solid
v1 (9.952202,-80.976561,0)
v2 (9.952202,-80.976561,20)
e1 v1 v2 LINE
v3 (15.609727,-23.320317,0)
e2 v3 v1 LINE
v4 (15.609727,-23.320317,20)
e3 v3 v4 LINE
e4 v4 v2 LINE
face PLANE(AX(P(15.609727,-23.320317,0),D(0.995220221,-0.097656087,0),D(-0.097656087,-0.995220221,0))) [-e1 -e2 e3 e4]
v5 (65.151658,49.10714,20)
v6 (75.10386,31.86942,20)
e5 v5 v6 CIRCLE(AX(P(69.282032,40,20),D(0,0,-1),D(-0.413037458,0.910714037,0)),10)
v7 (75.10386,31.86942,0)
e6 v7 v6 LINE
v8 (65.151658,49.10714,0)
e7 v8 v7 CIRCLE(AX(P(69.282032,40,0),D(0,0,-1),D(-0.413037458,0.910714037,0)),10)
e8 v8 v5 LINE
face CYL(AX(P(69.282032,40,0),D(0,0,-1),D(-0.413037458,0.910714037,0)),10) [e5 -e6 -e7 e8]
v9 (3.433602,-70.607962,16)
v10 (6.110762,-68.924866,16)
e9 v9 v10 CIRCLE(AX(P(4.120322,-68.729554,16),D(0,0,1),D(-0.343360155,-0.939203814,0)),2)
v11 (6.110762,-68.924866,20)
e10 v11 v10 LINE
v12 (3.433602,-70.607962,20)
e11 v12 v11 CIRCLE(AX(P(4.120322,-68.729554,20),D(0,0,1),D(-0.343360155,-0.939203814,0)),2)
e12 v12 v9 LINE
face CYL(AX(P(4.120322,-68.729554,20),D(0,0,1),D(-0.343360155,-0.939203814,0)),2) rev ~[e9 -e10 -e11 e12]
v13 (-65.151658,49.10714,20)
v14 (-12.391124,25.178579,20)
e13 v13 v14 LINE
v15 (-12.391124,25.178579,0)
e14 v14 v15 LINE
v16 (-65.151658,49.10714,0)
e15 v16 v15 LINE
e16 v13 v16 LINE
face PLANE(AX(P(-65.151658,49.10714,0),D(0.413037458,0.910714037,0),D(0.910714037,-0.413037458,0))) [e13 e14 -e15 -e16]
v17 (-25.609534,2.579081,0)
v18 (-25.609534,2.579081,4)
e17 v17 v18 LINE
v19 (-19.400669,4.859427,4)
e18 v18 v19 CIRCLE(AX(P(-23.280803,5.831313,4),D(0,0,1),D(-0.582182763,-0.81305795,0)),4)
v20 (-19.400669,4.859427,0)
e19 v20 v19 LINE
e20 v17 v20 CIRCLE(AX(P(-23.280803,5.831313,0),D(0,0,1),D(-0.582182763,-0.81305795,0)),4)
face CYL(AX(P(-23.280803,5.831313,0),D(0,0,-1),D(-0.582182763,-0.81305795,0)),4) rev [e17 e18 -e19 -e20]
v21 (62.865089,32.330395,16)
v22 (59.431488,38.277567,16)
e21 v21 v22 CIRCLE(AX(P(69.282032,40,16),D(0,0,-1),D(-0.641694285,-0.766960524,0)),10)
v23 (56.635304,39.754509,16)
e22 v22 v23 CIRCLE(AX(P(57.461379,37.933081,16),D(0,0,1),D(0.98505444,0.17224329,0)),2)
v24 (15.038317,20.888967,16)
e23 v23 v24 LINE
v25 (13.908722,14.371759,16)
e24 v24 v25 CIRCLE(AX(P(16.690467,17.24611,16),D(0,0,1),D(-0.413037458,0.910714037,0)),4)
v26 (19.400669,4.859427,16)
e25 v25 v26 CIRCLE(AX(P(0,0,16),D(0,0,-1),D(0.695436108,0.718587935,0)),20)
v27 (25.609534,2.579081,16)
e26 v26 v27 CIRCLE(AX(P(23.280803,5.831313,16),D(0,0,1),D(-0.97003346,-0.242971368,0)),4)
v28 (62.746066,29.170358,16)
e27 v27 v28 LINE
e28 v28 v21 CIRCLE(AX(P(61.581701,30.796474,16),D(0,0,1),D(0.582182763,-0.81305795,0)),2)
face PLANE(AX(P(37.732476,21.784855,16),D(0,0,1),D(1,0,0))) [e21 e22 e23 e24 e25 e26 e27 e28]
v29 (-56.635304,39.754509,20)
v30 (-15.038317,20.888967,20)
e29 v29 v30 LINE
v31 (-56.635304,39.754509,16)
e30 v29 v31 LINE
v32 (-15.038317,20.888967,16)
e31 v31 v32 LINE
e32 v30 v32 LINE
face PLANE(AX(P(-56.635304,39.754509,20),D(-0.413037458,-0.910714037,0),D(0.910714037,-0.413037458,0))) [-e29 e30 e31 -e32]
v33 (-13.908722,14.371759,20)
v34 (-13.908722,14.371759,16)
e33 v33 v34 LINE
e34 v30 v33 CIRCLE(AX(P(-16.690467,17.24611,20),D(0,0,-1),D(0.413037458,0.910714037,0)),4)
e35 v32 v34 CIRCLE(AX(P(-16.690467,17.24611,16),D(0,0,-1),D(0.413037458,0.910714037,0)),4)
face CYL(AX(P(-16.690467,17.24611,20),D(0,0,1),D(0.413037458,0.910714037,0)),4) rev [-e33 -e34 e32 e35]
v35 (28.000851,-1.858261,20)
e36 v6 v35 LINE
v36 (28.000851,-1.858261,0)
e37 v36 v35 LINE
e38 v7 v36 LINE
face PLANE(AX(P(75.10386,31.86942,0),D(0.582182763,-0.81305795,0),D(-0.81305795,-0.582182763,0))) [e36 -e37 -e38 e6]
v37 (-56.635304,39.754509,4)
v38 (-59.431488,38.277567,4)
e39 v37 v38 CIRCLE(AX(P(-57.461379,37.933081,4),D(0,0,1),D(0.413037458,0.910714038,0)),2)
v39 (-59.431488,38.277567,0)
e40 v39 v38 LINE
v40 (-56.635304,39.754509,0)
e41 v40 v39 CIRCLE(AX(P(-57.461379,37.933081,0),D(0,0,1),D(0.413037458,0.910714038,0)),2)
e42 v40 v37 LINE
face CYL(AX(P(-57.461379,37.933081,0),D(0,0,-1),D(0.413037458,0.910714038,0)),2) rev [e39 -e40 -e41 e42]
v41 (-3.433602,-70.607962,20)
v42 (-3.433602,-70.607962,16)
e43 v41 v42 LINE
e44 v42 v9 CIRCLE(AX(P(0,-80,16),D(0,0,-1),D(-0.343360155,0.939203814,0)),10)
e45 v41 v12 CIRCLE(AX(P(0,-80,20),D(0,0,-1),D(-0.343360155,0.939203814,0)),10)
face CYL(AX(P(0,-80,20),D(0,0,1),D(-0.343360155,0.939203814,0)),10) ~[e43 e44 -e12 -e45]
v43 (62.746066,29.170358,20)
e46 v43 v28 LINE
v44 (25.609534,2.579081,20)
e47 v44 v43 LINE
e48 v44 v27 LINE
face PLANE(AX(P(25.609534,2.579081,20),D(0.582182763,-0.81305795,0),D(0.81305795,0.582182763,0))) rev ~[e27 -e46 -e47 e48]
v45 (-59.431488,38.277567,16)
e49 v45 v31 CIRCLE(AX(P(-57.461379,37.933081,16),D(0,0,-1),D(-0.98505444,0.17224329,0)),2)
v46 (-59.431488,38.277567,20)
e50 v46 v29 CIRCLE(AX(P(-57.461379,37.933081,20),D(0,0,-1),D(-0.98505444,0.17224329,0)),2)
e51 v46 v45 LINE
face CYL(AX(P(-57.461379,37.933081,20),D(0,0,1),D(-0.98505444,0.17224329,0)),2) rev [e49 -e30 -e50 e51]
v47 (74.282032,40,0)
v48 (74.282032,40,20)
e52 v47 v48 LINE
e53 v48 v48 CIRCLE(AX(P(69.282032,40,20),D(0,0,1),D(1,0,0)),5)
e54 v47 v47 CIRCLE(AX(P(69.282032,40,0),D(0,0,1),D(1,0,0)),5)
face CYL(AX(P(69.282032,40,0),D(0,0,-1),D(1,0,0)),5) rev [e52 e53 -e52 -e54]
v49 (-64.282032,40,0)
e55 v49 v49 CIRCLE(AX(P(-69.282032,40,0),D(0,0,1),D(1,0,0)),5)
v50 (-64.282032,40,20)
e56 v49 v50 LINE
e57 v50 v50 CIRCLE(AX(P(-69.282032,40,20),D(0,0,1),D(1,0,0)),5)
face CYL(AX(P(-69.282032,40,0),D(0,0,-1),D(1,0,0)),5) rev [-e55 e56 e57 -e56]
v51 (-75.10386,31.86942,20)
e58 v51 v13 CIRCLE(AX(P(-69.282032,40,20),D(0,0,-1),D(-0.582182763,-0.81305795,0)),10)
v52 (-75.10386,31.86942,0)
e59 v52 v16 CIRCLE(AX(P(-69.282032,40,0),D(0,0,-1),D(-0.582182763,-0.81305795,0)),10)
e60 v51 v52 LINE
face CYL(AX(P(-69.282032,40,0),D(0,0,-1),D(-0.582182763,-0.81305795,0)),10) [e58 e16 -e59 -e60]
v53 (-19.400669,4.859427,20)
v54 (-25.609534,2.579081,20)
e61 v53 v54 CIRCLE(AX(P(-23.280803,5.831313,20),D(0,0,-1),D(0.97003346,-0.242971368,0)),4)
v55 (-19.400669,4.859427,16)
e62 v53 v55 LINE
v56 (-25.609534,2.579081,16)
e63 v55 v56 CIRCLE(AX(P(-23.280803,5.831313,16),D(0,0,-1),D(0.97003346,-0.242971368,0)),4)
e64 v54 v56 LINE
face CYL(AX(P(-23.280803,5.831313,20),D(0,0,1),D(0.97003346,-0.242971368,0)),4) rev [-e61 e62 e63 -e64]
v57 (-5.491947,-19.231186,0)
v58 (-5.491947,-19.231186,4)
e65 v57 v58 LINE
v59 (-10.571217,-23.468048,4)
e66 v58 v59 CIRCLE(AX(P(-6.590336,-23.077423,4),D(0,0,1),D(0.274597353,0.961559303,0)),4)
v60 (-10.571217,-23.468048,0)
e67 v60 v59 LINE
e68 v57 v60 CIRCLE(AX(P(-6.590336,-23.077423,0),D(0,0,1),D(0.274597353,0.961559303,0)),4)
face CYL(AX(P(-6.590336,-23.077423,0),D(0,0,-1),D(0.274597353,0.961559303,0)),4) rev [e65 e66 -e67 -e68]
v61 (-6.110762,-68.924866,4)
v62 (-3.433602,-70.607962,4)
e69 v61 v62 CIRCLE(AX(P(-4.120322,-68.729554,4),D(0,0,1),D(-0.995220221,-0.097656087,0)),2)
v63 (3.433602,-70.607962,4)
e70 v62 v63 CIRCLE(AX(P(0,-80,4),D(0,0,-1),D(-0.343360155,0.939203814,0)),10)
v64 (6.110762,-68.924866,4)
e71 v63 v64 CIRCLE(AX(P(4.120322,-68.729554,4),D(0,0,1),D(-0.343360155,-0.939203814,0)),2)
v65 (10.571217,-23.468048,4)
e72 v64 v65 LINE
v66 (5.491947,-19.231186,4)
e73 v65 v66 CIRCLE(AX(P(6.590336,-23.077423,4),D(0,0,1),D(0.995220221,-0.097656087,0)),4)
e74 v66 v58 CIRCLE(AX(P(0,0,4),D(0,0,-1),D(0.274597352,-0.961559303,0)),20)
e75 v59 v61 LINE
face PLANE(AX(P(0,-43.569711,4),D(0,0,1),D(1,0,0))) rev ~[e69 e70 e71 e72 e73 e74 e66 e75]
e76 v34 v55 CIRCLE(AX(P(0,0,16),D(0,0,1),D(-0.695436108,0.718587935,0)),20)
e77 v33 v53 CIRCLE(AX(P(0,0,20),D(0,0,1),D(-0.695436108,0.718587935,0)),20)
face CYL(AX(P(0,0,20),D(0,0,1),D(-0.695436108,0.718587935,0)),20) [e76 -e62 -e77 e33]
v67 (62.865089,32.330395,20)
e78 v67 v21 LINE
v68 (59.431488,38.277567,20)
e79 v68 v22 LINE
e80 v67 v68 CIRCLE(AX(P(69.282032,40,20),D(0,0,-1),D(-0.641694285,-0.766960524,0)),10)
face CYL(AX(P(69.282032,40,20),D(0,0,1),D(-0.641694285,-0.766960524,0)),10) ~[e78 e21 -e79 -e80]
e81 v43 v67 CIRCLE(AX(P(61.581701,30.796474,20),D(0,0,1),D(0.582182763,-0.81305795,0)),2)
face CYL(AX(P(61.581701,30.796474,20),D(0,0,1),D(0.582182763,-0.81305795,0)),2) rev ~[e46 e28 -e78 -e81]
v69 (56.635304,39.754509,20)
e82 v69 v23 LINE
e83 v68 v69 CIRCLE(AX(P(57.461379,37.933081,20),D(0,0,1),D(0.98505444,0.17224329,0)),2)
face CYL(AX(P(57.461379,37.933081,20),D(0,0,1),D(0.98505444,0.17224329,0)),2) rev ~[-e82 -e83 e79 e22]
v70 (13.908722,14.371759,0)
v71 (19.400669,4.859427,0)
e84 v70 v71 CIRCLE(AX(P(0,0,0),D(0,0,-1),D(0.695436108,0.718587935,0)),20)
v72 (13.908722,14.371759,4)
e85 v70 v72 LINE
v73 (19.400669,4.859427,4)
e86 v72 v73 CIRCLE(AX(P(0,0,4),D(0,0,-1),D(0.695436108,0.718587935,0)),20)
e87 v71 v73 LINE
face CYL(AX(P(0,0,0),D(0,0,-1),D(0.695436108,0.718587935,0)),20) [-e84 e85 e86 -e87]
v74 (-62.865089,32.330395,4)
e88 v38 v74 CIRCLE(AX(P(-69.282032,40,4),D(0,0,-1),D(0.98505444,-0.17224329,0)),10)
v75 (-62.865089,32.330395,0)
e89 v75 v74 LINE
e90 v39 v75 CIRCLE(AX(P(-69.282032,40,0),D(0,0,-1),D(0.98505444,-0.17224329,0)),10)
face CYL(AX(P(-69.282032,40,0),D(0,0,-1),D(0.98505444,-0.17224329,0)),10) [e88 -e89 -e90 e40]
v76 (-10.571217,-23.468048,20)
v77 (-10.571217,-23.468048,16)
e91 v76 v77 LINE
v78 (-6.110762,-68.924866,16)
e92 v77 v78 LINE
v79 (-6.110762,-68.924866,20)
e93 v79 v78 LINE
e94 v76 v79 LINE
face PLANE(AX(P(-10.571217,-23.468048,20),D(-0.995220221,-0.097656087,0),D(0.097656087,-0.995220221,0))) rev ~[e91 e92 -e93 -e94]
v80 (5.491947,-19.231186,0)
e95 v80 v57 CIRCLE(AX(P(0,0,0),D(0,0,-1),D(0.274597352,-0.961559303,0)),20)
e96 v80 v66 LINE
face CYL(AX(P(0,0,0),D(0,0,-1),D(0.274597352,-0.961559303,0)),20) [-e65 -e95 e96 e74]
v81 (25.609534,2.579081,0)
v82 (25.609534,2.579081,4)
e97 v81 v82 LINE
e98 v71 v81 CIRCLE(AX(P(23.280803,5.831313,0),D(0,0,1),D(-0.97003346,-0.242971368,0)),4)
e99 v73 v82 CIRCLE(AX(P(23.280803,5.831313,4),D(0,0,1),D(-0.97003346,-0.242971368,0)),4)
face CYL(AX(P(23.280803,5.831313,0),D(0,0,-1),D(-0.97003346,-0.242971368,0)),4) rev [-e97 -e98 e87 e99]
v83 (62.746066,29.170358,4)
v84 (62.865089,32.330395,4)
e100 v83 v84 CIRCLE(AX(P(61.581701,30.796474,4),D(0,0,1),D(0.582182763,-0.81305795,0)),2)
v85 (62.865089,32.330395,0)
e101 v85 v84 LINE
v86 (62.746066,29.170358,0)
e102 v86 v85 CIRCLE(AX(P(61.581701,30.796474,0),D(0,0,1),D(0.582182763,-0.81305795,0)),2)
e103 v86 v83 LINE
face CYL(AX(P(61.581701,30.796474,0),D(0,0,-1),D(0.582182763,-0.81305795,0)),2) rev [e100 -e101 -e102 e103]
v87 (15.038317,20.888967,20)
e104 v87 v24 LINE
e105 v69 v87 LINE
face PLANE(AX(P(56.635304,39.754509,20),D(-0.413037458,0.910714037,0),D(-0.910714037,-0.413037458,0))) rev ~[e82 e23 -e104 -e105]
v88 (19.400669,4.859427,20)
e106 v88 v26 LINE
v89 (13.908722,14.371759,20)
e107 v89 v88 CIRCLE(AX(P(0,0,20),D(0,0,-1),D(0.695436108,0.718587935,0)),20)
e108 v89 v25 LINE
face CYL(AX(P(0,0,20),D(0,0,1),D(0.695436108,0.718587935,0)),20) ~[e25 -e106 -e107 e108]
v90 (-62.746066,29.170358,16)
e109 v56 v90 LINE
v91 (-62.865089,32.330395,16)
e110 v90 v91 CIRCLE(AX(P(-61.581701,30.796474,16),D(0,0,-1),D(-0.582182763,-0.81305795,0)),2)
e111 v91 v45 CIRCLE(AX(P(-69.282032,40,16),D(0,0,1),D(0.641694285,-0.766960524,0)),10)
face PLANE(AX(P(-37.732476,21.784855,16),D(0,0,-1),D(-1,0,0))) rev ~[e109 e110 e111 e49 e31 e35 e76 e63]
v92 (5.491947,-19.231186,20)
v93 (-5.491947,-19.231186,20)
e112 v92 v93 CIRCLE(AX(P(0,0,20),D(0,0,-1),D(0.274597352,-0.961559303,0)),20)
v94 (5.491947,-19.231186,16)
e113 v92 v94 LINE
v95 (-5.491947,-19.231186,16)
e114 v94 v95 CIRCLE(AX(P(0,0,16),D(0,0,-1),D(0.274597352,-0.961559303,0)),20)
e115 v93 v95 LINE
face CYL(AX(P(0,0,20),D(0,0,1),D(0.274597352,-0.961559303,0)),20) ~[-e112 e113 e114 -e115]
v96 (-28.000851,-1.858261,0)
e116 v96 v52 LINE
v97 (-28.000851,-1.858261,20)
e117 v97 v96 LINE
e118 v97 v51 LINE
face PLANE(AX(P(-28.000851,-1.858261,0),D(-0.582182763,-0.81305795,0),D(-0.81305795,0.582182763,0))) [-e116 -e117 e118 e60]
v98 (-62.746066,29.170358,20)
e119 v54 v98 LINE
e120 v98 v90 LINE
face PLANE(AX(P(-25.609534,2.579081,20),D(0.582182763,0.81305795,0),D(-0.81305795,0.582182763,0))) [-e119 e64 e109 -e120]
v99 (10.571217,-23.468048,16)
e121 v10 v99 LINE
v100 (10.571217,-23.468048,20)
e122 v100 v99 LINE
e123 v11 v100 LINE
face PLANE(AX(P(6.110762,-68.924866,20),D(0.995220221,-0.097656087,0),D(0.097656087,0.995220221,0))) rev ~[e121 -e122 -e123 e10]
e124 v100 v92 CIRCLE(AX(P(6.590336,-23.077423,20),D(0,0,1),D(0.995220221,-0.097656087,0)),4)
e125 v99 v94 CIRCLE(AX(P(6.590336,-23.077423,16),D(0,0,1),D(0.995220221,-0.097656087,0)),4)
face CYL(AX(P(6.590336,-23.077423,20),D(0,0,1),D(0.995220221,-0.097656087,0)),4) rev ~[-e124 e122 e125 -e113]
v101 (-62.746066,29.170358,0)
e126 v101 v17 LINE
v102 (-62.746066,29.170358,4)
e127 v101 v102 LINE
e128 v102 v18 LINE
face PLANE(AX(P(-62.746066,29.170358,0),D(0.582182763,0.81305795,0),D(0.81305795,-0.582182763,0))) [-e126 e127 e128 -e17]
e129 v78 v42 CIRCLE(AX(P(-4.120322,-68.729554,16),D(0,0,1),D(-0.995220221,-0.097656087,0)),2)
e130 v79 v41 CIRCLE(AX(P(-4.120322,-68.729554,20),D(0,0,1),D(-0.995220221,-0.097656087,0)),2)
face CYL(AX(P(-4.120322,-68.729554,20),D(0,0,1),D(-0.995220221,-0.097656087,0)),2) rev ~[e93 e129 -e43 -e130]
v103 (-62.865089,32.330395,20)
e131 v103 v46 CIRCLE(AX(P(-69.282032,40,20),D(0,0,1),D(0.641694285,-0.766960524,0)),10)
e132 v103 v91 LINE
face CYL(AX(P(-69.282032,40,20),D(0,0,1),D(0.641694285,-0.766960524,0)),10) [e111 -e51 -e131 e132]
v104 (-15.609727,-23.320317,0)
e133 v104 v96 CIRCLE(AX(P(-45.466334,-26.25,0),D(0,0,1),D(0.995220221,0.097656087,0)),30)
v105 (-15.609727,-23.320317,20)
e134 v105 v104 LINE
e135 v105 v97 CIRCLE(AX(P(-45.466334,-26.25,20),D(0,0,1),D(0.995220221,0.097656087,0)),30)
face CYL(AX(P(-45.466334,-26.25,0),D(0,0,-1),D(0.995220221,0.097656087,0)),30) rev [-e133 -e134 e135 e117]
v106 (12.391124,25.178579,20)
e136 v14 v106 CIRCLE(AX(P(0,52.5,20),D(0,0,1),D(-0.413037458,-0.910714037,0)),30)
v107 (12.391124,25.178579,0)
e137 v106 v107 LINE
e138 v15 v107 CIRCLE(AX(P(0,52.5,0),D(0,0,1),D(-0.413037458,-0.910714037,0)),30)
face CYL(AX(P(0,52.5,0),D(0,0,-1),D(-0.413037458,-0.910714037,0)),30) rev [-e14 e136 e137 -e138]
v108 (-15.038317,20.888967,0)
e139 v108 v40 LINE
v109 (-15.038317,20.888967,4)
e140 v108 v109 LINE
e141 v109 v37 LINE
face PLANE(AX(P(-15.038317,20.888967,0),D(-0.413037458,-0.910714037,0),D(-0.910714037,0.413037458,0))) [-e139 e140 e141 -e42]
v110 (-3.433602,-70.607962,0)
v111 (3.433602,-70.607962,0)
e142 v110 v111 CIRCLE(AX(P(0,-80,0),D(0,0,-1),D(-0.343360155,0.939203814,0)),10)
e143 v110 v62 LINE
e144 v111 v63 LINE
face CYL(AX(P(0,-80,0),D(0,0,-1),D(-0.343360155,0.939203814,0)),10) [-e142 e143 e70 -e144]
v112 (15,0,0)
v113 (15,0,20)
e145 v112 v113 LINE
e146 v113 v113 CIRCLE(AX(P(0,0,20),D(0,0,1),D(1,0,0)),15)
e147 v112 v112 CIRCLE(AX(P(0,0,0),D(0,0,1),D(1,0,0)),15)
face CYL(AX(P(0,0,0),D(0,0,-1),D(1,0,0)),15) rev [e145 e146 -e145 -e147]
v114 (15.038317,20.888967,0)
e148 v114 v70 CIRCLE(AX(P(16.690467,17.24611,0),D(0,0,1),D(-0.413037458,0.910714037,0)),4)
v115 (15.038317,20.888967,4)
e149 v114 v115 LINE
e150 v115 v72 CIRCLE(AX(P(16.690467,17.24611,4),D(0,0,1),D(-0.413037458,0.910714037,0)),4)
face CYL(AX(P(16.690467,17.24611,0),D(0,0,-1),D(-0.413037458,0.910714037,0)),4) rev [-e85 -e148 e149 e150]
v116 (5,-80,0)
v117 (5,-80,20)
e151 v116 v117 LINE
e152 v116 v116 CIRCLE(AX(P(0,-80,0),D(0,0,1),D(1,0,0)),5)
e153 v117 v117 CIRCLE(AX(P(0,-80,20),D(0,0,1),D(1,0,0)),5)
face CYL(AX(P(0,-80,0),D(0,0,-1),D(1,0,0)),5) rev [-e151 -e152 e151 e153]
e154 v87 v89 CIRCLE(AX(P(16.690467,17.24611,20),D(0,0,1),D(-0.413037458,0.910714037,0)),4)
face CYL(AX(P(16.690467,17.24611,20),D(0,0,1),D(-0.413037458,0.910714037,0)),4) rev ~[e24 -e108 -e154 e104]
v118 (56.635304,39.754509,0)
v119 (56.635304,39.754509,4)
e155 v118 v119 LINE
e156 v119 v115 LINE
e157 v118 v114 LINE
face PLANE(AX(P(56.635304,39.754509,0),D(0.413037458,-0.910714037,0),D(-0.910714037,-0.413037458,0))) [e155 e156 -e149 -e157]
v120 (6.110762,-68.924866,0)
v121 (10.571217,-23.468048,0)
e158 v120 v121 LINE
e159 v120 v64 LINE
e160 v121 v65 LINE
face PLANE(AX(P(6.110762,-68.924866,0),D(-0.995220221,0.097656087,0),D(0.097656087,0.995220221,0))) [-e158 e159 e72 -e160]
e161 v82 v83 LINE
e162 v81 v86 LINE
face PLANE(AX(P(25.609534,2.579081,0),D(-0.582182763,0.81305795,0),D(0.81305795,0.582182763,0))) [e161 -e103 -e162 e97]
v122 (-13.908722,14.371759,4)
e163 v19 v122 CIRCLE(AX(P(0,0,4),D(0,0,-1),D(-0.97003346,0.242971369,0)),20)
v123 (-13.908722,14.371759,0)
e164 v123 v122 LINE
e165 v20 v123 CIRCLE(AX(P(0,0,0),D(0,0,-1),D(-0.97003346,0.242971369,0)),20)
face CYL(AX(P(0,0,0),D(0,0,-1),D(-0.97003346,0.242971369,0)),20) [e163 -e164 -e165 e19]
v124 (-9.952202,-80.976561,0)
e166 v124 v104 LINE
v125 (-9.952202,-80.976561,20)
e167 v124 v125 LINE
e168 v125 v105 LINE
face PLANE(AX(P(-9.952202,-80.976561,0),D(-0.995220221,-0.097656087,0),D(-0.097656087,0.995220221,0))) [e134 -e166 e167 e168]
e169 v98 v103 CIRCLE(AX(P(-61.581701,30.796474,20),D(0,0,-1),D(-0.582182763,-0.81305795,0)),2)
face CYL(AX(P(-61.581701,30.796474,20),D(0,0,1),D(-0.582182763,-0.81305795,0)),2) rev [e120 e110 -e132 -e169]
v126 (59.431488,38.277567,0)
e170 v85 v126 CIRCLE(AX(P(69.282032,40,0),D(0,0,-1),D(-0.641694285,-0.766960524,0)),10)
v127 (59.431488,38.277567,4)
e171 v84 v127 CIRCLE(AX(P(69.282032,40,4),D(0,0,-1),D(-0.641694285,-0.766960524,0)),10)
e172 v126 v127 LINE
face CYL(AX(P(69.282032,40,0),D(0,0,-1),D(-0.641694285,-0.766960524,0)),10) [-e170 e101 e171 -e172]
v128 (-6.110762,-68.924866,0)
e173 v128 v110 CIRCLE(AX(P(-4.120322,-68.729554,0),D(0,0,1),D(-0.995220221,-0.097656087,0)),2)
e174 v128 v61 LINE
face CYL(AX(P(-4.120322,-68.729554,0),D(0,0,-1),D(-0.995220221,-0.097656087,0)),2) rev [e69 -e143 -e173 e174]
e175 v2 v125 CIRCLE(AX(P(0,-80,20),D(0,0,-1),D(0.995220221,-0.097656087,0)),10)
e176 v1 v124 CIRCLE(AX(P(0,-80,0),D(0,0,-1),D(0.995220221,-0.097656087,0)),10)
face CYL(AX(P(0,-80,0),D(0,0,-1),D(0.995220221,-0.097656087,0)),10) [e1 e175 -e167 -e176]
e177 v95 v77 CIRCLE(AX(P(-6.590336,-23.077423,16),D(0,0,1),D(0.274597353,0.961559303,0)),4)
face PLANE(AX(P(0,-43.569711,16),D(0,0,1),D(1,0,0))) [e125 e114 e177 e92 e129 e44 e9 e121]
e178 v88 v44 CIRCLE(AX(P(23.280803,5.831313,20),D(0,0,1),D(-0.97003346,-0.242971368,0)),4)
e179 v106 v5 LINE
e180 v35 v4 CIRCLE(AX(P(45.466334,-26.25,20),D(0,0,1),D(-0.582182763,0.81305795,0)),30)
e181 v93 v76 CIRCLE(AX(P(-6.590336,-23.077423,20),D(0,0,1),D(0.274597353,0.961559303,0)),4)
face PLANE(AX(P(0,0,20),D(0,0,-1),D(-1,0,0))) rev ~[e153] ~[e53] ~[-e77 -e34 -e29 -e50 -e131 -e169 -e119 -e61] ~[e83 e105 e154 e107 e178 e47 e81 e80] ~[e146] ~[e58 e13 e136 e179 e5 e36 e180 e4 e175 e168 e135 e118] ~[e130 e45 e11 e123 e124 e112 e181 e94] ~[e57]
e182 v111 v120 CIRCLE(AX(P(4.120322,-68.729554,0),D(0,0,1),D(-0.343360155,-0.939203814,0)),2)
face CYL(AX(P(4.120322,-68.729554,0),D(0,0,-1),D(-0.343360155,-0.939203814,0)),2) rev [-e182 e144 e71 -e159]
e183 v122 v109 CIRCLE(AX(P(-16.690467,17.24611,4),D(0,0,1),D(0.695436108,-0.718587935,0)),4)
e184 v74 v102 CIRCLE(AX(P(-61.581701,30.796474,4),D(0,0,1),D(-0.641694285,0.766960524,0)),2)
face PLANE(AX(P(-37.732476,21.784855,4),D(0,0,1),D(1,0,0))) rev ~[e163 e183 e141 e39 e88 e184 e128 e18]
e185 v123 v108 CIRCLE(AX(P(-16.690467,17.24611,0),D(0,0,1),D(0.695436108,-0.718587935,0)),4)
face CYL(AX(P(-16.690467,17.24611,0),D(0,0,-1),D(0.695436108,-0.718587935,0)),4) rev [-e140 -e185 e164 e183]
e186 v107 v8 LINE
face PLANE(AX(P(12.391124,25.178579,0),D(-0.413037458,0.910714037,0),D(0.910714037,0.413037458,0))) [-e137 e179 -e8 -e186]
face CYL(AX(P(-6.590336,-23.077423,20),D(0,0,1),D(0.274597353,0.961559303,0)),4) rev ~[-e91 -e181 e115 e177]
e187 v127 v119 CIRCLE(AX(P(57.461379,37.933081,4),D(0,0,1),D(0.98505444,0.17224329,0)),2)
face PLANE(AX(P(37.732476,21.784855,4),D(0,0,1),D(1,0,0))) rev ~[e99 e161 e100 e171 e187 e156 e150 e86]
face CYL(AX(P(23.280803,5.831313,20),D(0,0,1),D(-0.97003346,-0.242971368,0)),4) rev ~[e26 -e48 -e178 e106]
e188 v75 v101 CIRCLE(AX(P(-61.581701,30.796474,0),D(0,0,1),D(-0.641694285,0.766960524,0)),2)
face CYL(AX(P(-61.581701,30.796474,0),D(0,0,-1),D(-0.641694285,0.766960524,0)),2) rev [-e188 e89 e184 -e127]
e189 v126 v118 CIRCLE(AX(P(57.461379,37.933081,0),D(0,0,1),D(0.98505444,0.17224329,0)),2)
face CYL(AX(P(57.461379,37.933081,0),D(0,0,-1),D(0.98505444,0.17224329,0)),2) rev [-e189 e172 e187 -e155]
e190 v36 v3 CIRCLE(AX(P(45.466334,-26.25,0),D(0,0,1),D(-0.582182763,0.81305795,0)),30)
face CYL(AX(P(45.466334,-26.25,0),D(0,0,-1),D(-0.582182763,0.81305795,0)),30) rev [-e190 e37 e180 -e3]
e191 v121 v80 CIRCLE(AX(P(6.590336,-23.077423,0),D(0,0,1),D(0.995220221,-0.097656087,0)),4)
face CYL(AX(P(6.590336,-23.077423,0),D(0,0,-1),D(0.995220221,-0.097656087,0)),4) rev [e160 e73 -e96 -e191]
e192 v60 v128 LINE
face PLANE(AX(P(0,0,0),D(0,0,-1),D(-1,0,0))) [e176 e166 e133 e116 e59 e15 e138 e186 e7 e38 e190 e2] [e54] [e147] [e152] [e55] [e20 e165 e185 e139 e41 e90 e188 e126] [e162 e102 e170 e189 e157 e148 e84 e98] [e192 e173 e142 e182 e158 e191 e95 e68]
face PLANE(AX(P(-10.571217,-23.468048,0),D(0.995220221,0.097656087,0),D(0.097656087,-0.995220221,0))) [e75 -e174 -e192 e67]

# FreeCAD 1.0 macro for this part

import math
import FreeCAD as App
import Part
import Sketcher
Q = App.Units.Quantity

doc = App.newDocument("Part")
params = doc.addObject("Spreadsheet::Sheet", "Params")
for row, (alias, value) in enumerate([
    ("sketch1_diameter", "10 mm"),
    ("sketch1_diameter2", "30 mm"),
    ("sketch1_radius", "10 mm"),
    ("sketch1_radius2", "30 mm"),
    ("pad1_length", "20 mm"),
    ("sketch2_radius", "30 mm"),
    ("sketch2_radius2", "10 mm"),
    ("sketch2_radius3", "4 mm"),
    ("sketch2_radius4", "20 mm"),
    ("sketch2_radius5", "2 mm"),
    ("pocket1_length", "4 mm"),
    ("sketch3_radius", "4 mm"),
    ("sketch3_radius2", "20 mm"),
    ("sketch3_radius3", "2 mm"),
    ("sketch3_radius4", "10 mm"),
    ("pocket2_length", "4 mm"),
], start=1):
    params.set(f"A{row}", alias)
    params.set(f"B{row}", "=" + value)
    params.setAlias(f"B{row}", alias)

body = doc.addObject("PartDesign::Body", "Body")

sketch1 = body.newObject("Sketcher::SketchObject", "Sketch")
sketch1.AttachmentSupport = (doc.getObject("XY_Plane"), [""])
sketch1.MapMode = "FlatFace"
sketch1.addGeometry([
    Part.LineSegment(App.Vector(-16, -23, 0), App.Vector(-10, -81, 0)),
    Part.ArcOfCircle(Part.Circle(App.Vector(0, -80, 0), App.Vector(0, 0, 1), 10), math.radians(-174), math.radians(-6)),
    Part.LineSegment(App.Vector(10, -81, 0), App.Vector(16, -23, 0)),
    Part.ArcOfCircle(Part.Circle(App.Vector(45, -26, 0), App.Vector(0, 0, 1), 30), math.radians(126), math.radians(174)),
    Part.LineSegment(App.Vector(28, -2, 0), App.Vector(75, 32, 0)),
    Part.ArcOfCircle(Part.Circle(App.Vector(69, 40, 0), App.Vector(0, 0, 1), 10), math.radians(-54), math.radians(114)),
    Part.LineSegment(App.Vector(65, 49, 0), App.Vector(12, 25, 0)),
    Part.ArcOfCircle(Part.Circle(App.Vector(0, 52, 0), App.Vector(0, 0, 1), 30), math.radians(-114), math.radians(-66)),
    Part.LineSegment(App.Vector(-12, 25, 0), App.Vector(-65, 49, 0)),
    Part.ArcOfCircle(Part.Circle(App.Vector(-69, 40, 0), App.Vector(0, 0, 1), 10), math.radians(66), math.radians(234)),
    Part.LineSegment(App.Vector(-75, 32, 0), App.Vector(-28, -2, 0)),
    Part.ArcOfCircle(Part.Circle(App.Vector(-45, -26, 0), App.Vector(0, 0, 1), 30), math.radians(6), math.radians(54)),
    Part.Circle(App.Vector(0, -80, 0), App.Vector(0, 0, 1), 5),
    Part.Circle(App.Vector(69, 40, 0), App.Vector(0, 0, 1), 5),
    Part.Circle(App.Vector(0, 0, 0), App.Vector(0, 0, 1), 15),
    Part.Circle(App.Vector(-69, 40, 0), App.Vector(0, 0, 1), 5),
], False)
sketch1.addConstraint([
    Sketcher.Constraint("Tangent", 0, 2, 1, 1),
    Sketcher.Constraint("Tangent", 1, 2, 2, 1),
    Sketcher.Constraint("Tangent", 2, 2, 3, 2),
    Sketcher.Constraint("Tangent", 3, 1, 4, 1),
    Sketcher.Constraint("Tangent", 4, 2, 5, 1),
    Sketcher.Constraint("Tangent", 5, 2, 6, 1),
    Sketcher.Constraint("Tangent", 6, 2, 7, 2),
    Sketcher.Constraint("Tangent", 7, 1, 8, 1),
    Sketcher.Constraint("Tangent", 8, 2, 9, 1),
    Sketcher.Constraint("Tangent", 9, 2, 10, 1),
    Sketcher.Constraint("Tangent", 10, 2, 11, 2),
    Sketcher.Constraint("Tangent", 11, 1, 0, 1),
    Sketcher.Constraint("Coincident", 14, 3, -1, 1),
    Sketcher.Constraint("Coincident", 12, 3, 1, 3),
    Sketcher.Constraint("Coincident", 13, 3, 5, 3),
    Sketcher.Constraint("Coincident", 15, 3, 9, 3),
    Sketcher.Constraint("Equal", 1, 5),
    Sketcher.Constraint("Equal", 3, 7),
    Sketcher.Constraint("Equal", 5, 9),
    Sketcher.Constraint("Equal", 7, 11),
    Sketcher.Constraint("Equal", 12, 13),
    Sketcher.Constraint("Equal", 13, 15),
    Sketcher.Constraint("Symmetric", 5, 3, 9, 3, -2),
    Sketcher.Constraint("Symmetric", 3, 3, 11, 3, -2),
    Sketcher.Constraint("PointOnObject", 1, 3, -2),
    Sketcher.Constraint("PointOnObject", 7, 3, -2),
    Sketcher.Constraint("Equal", 2, 4),
    Sketcher.Constraint("Equal", 4, 6),
    Sketcher.Constraint("Diameter", 12, Q("10 mm")),
    Sketcher.Constraint("Diameter", 14, Q("30 mm")),
    Sketcher.Constraint("Radius", 1, Q("10 mm")),
    Sketcher.Constraint("Radius", 3, Q("30 mm")),
    Sketcher.Constraint("DistanceY", 1, 3, -1, 1, Q("80 mm")),
    Sketcher.Constraint("DistanceY", -1, 1, 5, 3, Q("40 mm")),
    Sketcher.Constraint("DistanceY", -1, 1, 7, 3, Q("52.5 mm")),
    Sketcher.Constraint("DistanceY", 3, 3, -1, 1, Q("26.25 mm")),
])
sketch1.setExpression("Constraints[28]", "Params.sketch1_diameter")
sketch1.setExpression("Constraints[29]", "Params.sketch1_diameter2")
sketch1.setExpression("Constraints[30]", "Params.sketch1_radius")
sketch1.setExpression("Constraints[31]", "Params.sketch1_radius2")
pad1 = body.newObject("PartDesign::Pad", "Pad")
pad1.Profile = sketch1
pad1.setExpression("Length", "Params.pad1_length")

sketch2 = body.newObject("Sketcher::SketchObject", "Sketch001")
sketch2.AttachmentSupport = (doc.getObject("XY_Plane"), [""])
sketch2.MapMode = "FlatFace"
sketch2.AttachmentOffset = App.Placement(App.Vector(0, 0, 20), App.Rotation())
sketch2.addGeometry([
    Part.LineSegment(App.Vector(-101.5, 72.2, 0), App.Vector(-101.5, -112.2, 0)),
    Part.LineSegment(App.Vector(-101.5, -112.2, 0), App.Vector(101.5, -112.2, 0)),
    Part.LineSegment(App.Vector(101.5, -112.2, 0), App.Vector(101.5, 72.2, 0)),
    Part.LineSegment(App.Vector(101.5, 72.2, 0), App.Vector(-101.5, 72.2, 0)),
    Part.LineSegment(App.Vector(-10, -81, 0), App.Vector(-15.6, -23.3, 0)),
    Part.ArcOfCircle(Part.Circle(App.Vector(-45.5, -26.2, 0), App.Vector(0, 0, 1), 30), math.radians(6), math.radians(54)),
    Part.LineSegment(App.Vector(-28, -1.9, 0), App.Vector(-75.1, 31.9, 0)),
    Part.ArcOfCircle(Part.Circle(App.Vector(-69.3, 40, 0), App.Vector(0, 0, 1), 10), math.radians(66), math.radians(234)),
    Part.LineSegment(App.Vector(-65.2, 49.1, 0), App.Vector(-12.4, 25.2, 0)),
    Part.ArcOfCircle(Part.Circle(App.Vector(0, 52.5, 0), App.Vector(0, 0, 1), 30), math.radians(-114), math.radians(-66)),
    Part.LineSegment(App.Vector(12.4, 25.2, 0), App.Vector(65.2, 49.1, 0)),
    Part.ArcOfCircle(Part.Circle(App.Vector(69.3, 40, 0), App.Vector(0, 0, 1), 10), math.radians(-54), math.radians(114)),
    Part.LineSegment(App.Vector(75.1, 31.9, 0), App.Vector(28, -1.9, 0)),
    Part.ArcOfCircle(Part.Circle(App.Vector(45.5, -26.2, 0), App.Vector(0, 0, 1), 30), math.radians(126), math.radians(174)),
    Part.LineSegment(App.Vector(15.6, -23.3, 0), App.Vector(10, -81, 0)),
    Part.ArcOfCircle(Part.Circle(App.Vector(0, -80, 0), App.Vector(0, 0, 1), 10), math.radians(-174), math.radians(-6)),
    Part.LineSegment(App.Vector(-62.7, 29.2, 0), App.Vector(-25.6, 2.6, 0)),
    Part.ArcOfCircle(Part.Circle(App.Vector(-23.3, 5.8, 0), App.Vector(0, 0, 1), 4), math.radians(-126), math.radians(-14)),
    Part.ArcOfCircle(Part.Circle(App.Vector(0, 0, 0), App.Vector(0, 0, 1), 20), math.radians(134), math.radians(166)),
    Part.ArcOfCircle(Part.Circle(App.Vector(-16.7, 17.2, 0), App.Vector(0, 0, 1), 4), math.radians(-46), math.radians(66)),
    Part.LineSegment(App.Vector(-15, 20.9, 0), App.Vector(-56.6, 39.8, 0)),
    Part.ArcOfCircle(Part.Circle(App.Vector(-57.5, 37.9, 0), App.Vector(0, 0, 1), 2), math.radians(66), math.radians(170)),
    Part.ArcOfCircle(Part.Circle(App.Vector(-69.3, 40, 0), App.Vector(0, 0, 1), 10), math.radians(-50), math.radians(-10)),
    Part.ArcOfCircle(Part.Circle(App.Vector(-61.6, 30.8, 0), App.Vector(0, 0, 1), 2), math.radians(130), math.radians(234)),
    Part.LineSegment(App.Vector(25.6, 2.6, 0), App.Vector(62.7, 29.2, 0)),
    Part.ArcOfCircle(Part.Circle(App.Vector(61.6, 30.8, 0), App.Vector(0, 0, 1), 2), math.radians(-54), math.radians(50)),
    Part.ArcOfCircle(Part.Circle(App.Vector(69.3, 40, 0), App.Vector(0, 0, 1), 10), math.radians(-170), math.radians(-130)),
    Part.ArcOfCircle(Part.Circle(App.Vector(57.5, 37.9, 0), App.Vector(0, 0, 1), 2), math.radians(10), math.radians(114)),
    Part.LineSegment(App.Vector(56.6, 39.8, 0), App.Vector(15, 20.9, 0)),
    Part.ArcOfCircle(Part.Circle(App.Vector(16.7, 17.2, 0), App.Vector(0, 0, 1), 4), math.radians(114), math.radians(226)),
    Part.ArcOfCircle(Part.Circle(App.Vector(0, 0, 0), App.Vector(0, 0, 1), 20), math.radians(14), math.radians(46)),
    Part.ArcOfCircle(Part.Circle(App.Vector(23.3, 5.8, 0), App.Vector(0, 0, 1), 4), math.radians(-166), math.radians(-54)),
    Part.LineSegment(App.Vector(-10.6, -23.5, 0), App.Vector(-6.1, -68.9, 0)),
    Part.ArcOfCircle(Part.Circle(App.Vector(-4.1, -68.7, 0), App.Vector(0, 0, 1), 2), math.radians(-174), math.radians(-70)),
    Part.ArcOfCircle(Part.Circle(App.Vector(0, -80, 0), App.Vector(0, 0, 1), 10), math.radians(70), math.radians(110)),
    Part.ArcOfCircle(Part.Circle(App.Vector(4.1, -68.7, 0), App.Vector(0, 0, 1), 2), math.radians(-110), math.radians(-6)),
    Part.LineSegment(App.Vector(6.1, -68.9, 0), App.Vector(10.6, -23.5, 0)),
    Part.ArcOfCircle(Part.Circle(App.Vector(6.6, -23.1, 0), App.Vector(0, 0, 1), 4), math.radians(-6), math.radians(106)),
    Part.ArcOfCircle(Part.Circle(App.Vector(0, 0, 0), App.Vector(0, 0, 1), 20), math.radians(-106), math.radians(-74)),
    Part.ArcOfCircle(Part.Circle(App.Vector(-6.6, -23.1, 0), App.Vector(0, 0, 1), 4), math.radians(74), math.radians(186)),
], False)
sketch2.addConstraint([
    Sketcher.Constraint("Coincident", 0, 2, 1, 1),
    Sketcher.Constraint("Coincident", 1, 2, 2, 1),
    Sketcher.Constraint("Coincident", 2, 2, 3, 1),
    Sketcher.Constraint("Coincident", 3, 2, 0, 1),
    Sketcher.Constraint("Tangent", 4, 2, 5, 1),
    Sketcher.Constraint("Tangent", 5, 2, 6, 1),
    Sketcher.Constraint("Tangent", 6, 2, 7, 2),
    Sketcher.Constraint("Tangent", 7, 1, 8, 1),
    Sketcher.Constraint("Tangent", 8, 2, 9, 1),
    Sketcher.Constraint("Tangent", 9, 2, 10, 1),
    Sketcher.Constraint("Tangent", 10, 2, 11, 2),
    Sketcher.Constraint("Tangent", 11, 1, 12, 1),
    Sketcher.Constraint("Tangent", 12, 2, 13, 1),
    Sketcher.Constraint("Tangent", 13, 2, 14, 1),
    Sketcher.Constraint("Tangent", 14, 2, 15, 2),
    Sketcher.Constraint("Tangent", 15, 1, 4, 1),
    Sketcher.Constraint("Tangent", 16, 2, 17, 1),
    Sketcher.Constraint("Tangent", 17, 2, 18, 2),
    Sketcher.Constraint("Tangent", 18, 1, 19, 1),
    Sketcher.Constraint("Tangent", 19, 2, 20, 1),
    Sketcher.Constraint("Tangent", 20, 2, 21, 1),
    Sketcher.Constraint("Tangent", 21, 2, 22, 2),
    Sketcher.Constraint("Tangent", 22, 1, 23, 1),
    Sketcher.Constraint("Tangent", 23, 2, 16, 1),
    Sketcher.Constraint("Tangent", 24, 2, 25, 1),
    Sketcher.Constraint("Tangent", 25, 2, 26, 2),
    Sketcher.Constraint("Tangent", 26, 1, 27, 1),
    Sketcher.Constraint("Tangent", 27, 2, 28, 1),
    Sketcher.Constraint("Tangent", 28, 2, 29, 1),
    Sketcher.Constraint("Tangent", 29, 2, 30, 2),
    Sketcher.Constraint("Tangent", 30, 1, 31, 1),
    Sketcher.Constraint("Tangent", 31, 2, 24, 1),
    Sketcher.Constraint("Tangent", 32, 2, 33, 1),
    Sketcher.Constraint("Tangent", 33, 2, 34, 2),
    Sketcher.Constraint("Tangent", 34, 1, 35, 1),
    Sketcher.Constraint("Tangent", 35, 2, 36, 1),
    Sketcher.Constraint("Tangent", 36, 2, 37, 1),
    Sketcher.Constraint("Tangent", 37, 2, 38, 2),
    Sketcher.Constraint("Tangent", 38, 1, 39, 1),
    Sketcher.Constraint("Tangent", 39, 2, 32, 1),
    Sketcher.Constraint("Vertical", 0),
    Sketcher.Constraint("Horizontal", 1),
    Sketcher.Constraint("Vertical", 2),
    Sketcher.Constraint("Horizontal", 3),
    Sketcher.Constraint("Coincident", 18, 3, -1, 1),
    Sketcher.Constraint("Coincident", 30, 3, -1, 1),
    Sketcher.Constraint("Coincident", 38, 3, -1, 1),
    Sketcher.Constraint("Coincident", 22, 3, 7, 3),
    Sketcher.Constraint("Coincident", 26, 3, 11, 3),
    Sketcher.Constraint("Coincident", 34, 3, 15, 3),
    Sketcher.Constraint("Equal", 5, 9),
    Sketcher.Constraint("Equal", 7, 11),
    Sketcher.Constraint("Equal", 9, 13),
    Sketcher.Constraint("Equal", 11, 15),
    Sketcher.Constraint("Equal", 17, 19),
    Sketcher.Constraint("Equal", 15, 22),
    Sketcher.Constraint("Equal", 21, 23),
    Sketcher.Constraint("Equal", 23, 25),
    Sketcher.Constraint("Equal", 22, 26),
    Sketcher.Constraint("Equal", 25, 27),
    Sketcher.Constraint("Equal", 19, 29),
    Sketcher.Constraint("Equal", 18, 30),
    Sketcher.Constraint("Equal", 29, 31),
    Sketcher.Constraint("Equal", 27, 33),
    Sketcher.Constraint("Equal", 26, 34),
    Sketcher.Constraint("Equal", 33, 35),
    Sketcher.Constraint("Equal", 31, 37),
    Sketcher.Constraint("Equal", 30, 38),
    Sketcher.Constraint("Equal", 37, 39),
    Sketcher.Constraint("Symmetric", 7, 3, 11, 3, -2),
    Sketcher.Constraint("Symmetric", 5, 3, 13, 3, -2),
    Sketcher.Constraint("Symmetric", 33, 3, 35, 3, -2),
    Sketcher.Constraint("Symmetric", 23, 2, 24, 2, -2),
    Sketcher.Constraint("Symmetric", 20, 2, 27, 2, -2),
    Sketcher.Constraint("PointOnObject", 9, 3, -2),
    Sketcher.Constraint("Parallel", 6, 16),
    Sketcher.Constraint("Parallel", 8, 20),
    Sketcher.Constraint("Parallel", 4, 32),
    Sketcher.Constraint("Parallel", 14, 36),
    Sketcher.Constraint("Equal", 4, 6),
    Sketcher.Constraint("Equal", 6, 8),
    Sketcher.Constraint("Equal", 16, 20),
    Sketcher.Constraint("Equal", 28, 32),
    Sketcher.Constraint("Radius", 5, Q("30 mm")),
    Sketcher.Constraint("Radius", 7, Q("10 mm")),
    Sketcher.Constraint("Radius", 17, Q("4 mm")),
    Sketcher.Constraint("Radius", 18, Q("20 mm")),
    Sketcher.Constraint("Radius", 21, Q("2 mm")),
    Sketcher.Constraint("DistanceY", -1, 1, 7, 3, Q("40 mm")),
    Sketcher.Constraint("DistanceY", 15, 3, -1, 1, Q("80 mm")),
    Sketcher.Constraint("DistanceY", -1, 1, 9, 3, Q("52.5 mm")),
    Sketcher.Constraint("DistanceX", 1, 1, 1, 2, Q("203.058 mm")),
    Sketcher.Constraint("DistanceY", 0, 2, 0, 1, Q("184.494 mm")),
    Sketcher.Constraint("DistanceY", 5, 3, -1, 1, Q("26.25 mm")),
    Sketcher.Constraint("DistanceX", 0, 2, -1, 1, Q("101.529 mm")),
    Sketcher.Constraint("DistanceY", 0, 2, -1, 1, Q("112.247 mm")),
    Sketcher.Constraint("DistanceX", 23, 3, -1, 1, Q("61.581701 mm")),
])
sketch2.setExpression("Constraints[83]", "Params.sketch2_radius")
sketch2.setExpression("Constraints[84]", "Params.sketch2_radius2")
sketch2.setExpression("Constraints[85]", "Params.sketch2_radius3")
sketch2.setExpression("Constraints[86]", "Params.sketch2_radius4")
sketch2.setExpression("Constraints[87]", "Params.sketch2_radius5")
pocket1 = body.newObject("PartDesign::Pocket", "Pocket")
pocket1.Profile = sketch2
pocket1.setExpression("Length", "Params.pocket1_length")

sketch3 = body.newObject("Sketcher::SketchObject", "Sketch002")
sketch3.AttachmentSupport = (doc.getObject("XY_Plane"), [""])
sketch3.MapMode = "FlatFace"
sketch3.addGeometry([
    Part.LineSegment(App.Vector(-6.1, -68.9, 0), App.Vector(-10.6, -23.5, 0)),
    Part.ArcOfCircle(Part.Circle(App.Vector(-6.6, -23.1, 0), App.Vector(0, 0, 1), 4), math.radians(74), math.radians(186)),
    Part.ArcOfCircle(Part.Circle(App.Vector(0, 0, 0), App.Vector(0, 0, 1), 20), math.radians(-106), math.radians(-74)),
    Part.ArcOfCircle(Part.Circle(App.Vector(6.6, -23.1, 0), App.Vector(0, 0, 1), 4), math.radians(-6), math.radians(106)),
    Part.LineSegment(App.Vector(10.6, -23.5, 0), App.Vector(6.1, -68.9, 0)),
    Part.ArcOfCircle(Part.Circle(App.Vector(4.1, -68.7, 0), App.Vector(0, 0, 1), 2), math.radians(-110), math.radians(-6)),
    Part.ArcOfCircle(Part.Circle(App.Vector(0, -80, 0), App.Vector(0, 0, 1), 10), math.radians(70), math.radians(110)),
    Part.ArcOfCircle(Part.Circle(App.Vector(-4.1, -68.7, 0), App.Vector(0, 0, 1), 2), math.radians(-174), math.radians(-70)),
    Part.LineSegment(App.Vector(62.7, 29.2, 0), App.Vector(25.6, 2.6, 0)),
    Part.ArcOfCircle(Part.Circle(App.Vector(23.3, 5.8, 0), App.Vector(0, 0, 1), 4), math.radians(-166), math.radians(-54)),
    Part.ArcOfCircle(Part.Circle(App.Vector(0, 0, 0), App.Vector(0, 0, 1), 20), math.radians(14), math.radians(46)),
    Part.ArcOfCircle(Part.Circle(App.Vector(16.7, 17.2, 0), App.Vector(0, 0, 1), 4), math.radians(114), math.radians(226)),
    Part.LineSegment(App.Vector(15, 20.9, 0), App.Vector(56.6, 39.8, 0)),
    Part.ArcOfCircle(Part.Circle(App.Vector(57.5, 37.9, 0), App.Vector(0, 0, 1), 2), math.radians(10), math.radians(114)),
    Part.ArcOfCircle(Part.Circle(App.Vector(69.3, 40, 0), App.Vector(0, 0, 1), 10), math.radians(-170), math.radians(-130)),
    Part.ArcOfCircle(Part.Circle(App.Vector(61.6, 30.8, 0), App.Vector(0, 0, 1), 2), math.radians(-54), math.radians(50)),
    Part.LineSegment(App.Vector(-56.6, 39.8, 0), App.Vector(-15, 20.9, 0)),
    Part.ArcOfCircle(Part.Circle(App.Vector(-16.7, 17.2, 0), App.Vector(0, 0, 1), 4), math.radians(-46), math.radians(66)),
    Part.ArcOfCircle(Part.Circle(App.Vector(0, 0, 0), App.Vector(0, 0, 1), 20), math.radians(134), math.radians(166)),
    Part.ArcOfCircle(Part.Circle(App.Vector(-23.3, 5.8, 0), App.Vector(0, 0, 1), 4), math.radians(-126), math.radians(-14)),
    Part.LineSegment(App.Vector(-25.6, 2.6, 0), App.Vector(-62.7, 29.2, 0)),
    Part.ArcOfCircle(Part.Circle(App.Vector(-61.6, 30.8, 0), App.Vector(0, 0, 1), 2), math.radians(130), math.radians(234)),
    Part.ArcOfCircle(Part.Circle(App.Vector(-69.3, 40, 0), App.Vector(0, 0, 1), 10), math.radians(-50), math.radians(-10)),
    Part.ArcOfCircle(Part.Circle(App.Vector(-57.5, 37.9, 0), App.Vector(0, 0, 1), 2), math.radians(66), math.radians(170)),
], False)
sketch3.addConstraint([
    Sketcher.Constraint("Tangent", 0, 2, 1, 2),
    Sketcher.Constraint("Tangent", 1, 1, 2, 1),
    Sketcher.Constraint("Tangent", 2, 2, 3, 2),
    Sketcher.Constraint("Tangent", 3, 1, 4, 1),
    Sketcher.Constraint("Tangent", 4, 2, 5, 2),
    Sketcher.Constraint("Tangent", 5, 1, 6, 1),
    Sketcher.Constraint("Tangent", 6, 2, 7, 2),
    Sketcher.Constraint("Tangent", 7, 1, 0, 1),
    Sketcher.Constraint("Tangent", 8, 2, 9, 2),
    Sketcher.Constraint("Tangent", 9, 1, 10, 1),
    Sketcher.Constraint("Tangent", 10, 2, 11, 2),
    Sketcher.Constraint("Tangent", 11, 1, 12, 1),
    Sketcher.Constraint("Tangent", 12, 2, 13, 2),
    Sketcher.Constraint("Tangent", 13, 1, 14, 1),
    Sketcher.Constraint("Tangent", 14, 2, 15, 2),
    Sketcher.Constraint("Tangent", 15, 1, 8, 1),
    Sketcher.Constraint("Tangent", 16, 2, 17, 2),
    Sketcher.Constraint("Tangent", 17, 1, 18, 1),
    Sketcher.Constraint("Tangent", 18, 2, 19, 2),
    Sketcher.Constraint("Tangent", 19, 1, 20, 1),
    Sketcher.Constraint("Tangent", 20, 2, 21, 2),
    Sketcher.Constraint("Tangent", 21, 1, 22, 1),
    Sketcher.Constraint("Tangent", 22, 2, 23, 2),
    Sketcher.Constraint("Tangent", 23, 1, 16, 1),
    Sketcher.Constraint("Coincident", 2, 3, -1, 1),
    Sketcher.Constraint("Coincident", 10, 3, -1, 1),
    Sketcher.Constraint("Coincident", 18, 3, -1, 1),
    Sketcher.Constraint("Equal", 1, 3),
    Sketcher.Constraint("Equal", 5, 7),
    Sketcher.Constraint("Equal", 3, 9),
    Sketcher.Constraint("Equal", 2, 10),
    Sketcher.Constraint("Equal", 9, 11),
    Sketcher.Constraint("Equal", 7, 13),
    Sketcher.Constraint("Equal", 6, 14),
    Sketcher.Constraint("Equal", 13, 15),
    Sketcher.Constraint("Equal", 11, 17),
    Sketcher.Constraint("Equal", 10, 18),
    Sketcher.Constraint("Equal", 17, 19),
    Sketcher.Constraint("Equal", 15, 21),
    Sketcher.Constraint("Equal", 14, 22),
    Sketcher.Constraint("Equal", 21, 23),
    Sketcher.Constraint("Symmetric", 5, 3, 7, 3, -2),
    Sketcher.Constraint("Symmetric", 15, 3, 21, 3, -2),
    Sketcher.Constraint("Symmetric", 13, 3, 23, 3, -2),
    Sketcher.Constraint("Horizontal", 1, 3, 3, 3),
    Sketcher.Constraint("Horizontal", 11, 3, 17, 3),
    Sketcher.Constraint("Horizontal", 9, 3, 19, 3),
    Sketcher.Constraint("Equal", 4, 8),
    Sketcher.Constraint("Equal", 8, 12),
    Sketcher.Constraint("Radius", 1, Q("4 mm")),
    Sketcher.Constraint("Radius", 2, Q("20 mm")),
    Sketcher.Constraint("Radius", 5, Q("2 mm")),
    Sketcher.Constraint("Radius", 6, Q("10 mm")),
    Sketcher.Constraint("DistanceY", 6, 3, -1, 1, Q("80 mm")),
    Sketcher.Constraint("DistanceY", -1, 1, 14, 3, Q("40 mm")),
    Sketcher.Constraint("DistanceX", -1, 1, 15, 3, Q("61.581701 mm")),
    Sketcher.Constraint("DistanceX", -1, 1, 5, 1, Q("3.433602 mm")),
    Sketcher.Constraint("DistanceY", 11, 3, 12, 2, Q("22.508398 mm")),
    Sketcher.Constraint("DistanceX", 13, 1, 14, 2, Q("3.433602 mm")),
    Sketcher.Constraint("DistanceY", -1, 1, 11, 3, Q("17.24611 mm")),
])
sketch3.setExpression("Constraints[49]", "Params.sketch3_radius")
sketch3.setExpression("Constraints[50]", "Params.sketch3_radius2")
sketch3.setExpression("Constraints[51]", "Params.sketch3_radius3")
sketch3.setExpression("Constraints[52]", "Params.sketch3_radius4")
pocket2 = body.newObject("PartDesign::Pocket", "Pocket001")
pocket2.Profile = sketch3
pocket2.setExpression("Length", "Params.pocket2_length")
pocket2.Reversed = True

doc.recompute()
